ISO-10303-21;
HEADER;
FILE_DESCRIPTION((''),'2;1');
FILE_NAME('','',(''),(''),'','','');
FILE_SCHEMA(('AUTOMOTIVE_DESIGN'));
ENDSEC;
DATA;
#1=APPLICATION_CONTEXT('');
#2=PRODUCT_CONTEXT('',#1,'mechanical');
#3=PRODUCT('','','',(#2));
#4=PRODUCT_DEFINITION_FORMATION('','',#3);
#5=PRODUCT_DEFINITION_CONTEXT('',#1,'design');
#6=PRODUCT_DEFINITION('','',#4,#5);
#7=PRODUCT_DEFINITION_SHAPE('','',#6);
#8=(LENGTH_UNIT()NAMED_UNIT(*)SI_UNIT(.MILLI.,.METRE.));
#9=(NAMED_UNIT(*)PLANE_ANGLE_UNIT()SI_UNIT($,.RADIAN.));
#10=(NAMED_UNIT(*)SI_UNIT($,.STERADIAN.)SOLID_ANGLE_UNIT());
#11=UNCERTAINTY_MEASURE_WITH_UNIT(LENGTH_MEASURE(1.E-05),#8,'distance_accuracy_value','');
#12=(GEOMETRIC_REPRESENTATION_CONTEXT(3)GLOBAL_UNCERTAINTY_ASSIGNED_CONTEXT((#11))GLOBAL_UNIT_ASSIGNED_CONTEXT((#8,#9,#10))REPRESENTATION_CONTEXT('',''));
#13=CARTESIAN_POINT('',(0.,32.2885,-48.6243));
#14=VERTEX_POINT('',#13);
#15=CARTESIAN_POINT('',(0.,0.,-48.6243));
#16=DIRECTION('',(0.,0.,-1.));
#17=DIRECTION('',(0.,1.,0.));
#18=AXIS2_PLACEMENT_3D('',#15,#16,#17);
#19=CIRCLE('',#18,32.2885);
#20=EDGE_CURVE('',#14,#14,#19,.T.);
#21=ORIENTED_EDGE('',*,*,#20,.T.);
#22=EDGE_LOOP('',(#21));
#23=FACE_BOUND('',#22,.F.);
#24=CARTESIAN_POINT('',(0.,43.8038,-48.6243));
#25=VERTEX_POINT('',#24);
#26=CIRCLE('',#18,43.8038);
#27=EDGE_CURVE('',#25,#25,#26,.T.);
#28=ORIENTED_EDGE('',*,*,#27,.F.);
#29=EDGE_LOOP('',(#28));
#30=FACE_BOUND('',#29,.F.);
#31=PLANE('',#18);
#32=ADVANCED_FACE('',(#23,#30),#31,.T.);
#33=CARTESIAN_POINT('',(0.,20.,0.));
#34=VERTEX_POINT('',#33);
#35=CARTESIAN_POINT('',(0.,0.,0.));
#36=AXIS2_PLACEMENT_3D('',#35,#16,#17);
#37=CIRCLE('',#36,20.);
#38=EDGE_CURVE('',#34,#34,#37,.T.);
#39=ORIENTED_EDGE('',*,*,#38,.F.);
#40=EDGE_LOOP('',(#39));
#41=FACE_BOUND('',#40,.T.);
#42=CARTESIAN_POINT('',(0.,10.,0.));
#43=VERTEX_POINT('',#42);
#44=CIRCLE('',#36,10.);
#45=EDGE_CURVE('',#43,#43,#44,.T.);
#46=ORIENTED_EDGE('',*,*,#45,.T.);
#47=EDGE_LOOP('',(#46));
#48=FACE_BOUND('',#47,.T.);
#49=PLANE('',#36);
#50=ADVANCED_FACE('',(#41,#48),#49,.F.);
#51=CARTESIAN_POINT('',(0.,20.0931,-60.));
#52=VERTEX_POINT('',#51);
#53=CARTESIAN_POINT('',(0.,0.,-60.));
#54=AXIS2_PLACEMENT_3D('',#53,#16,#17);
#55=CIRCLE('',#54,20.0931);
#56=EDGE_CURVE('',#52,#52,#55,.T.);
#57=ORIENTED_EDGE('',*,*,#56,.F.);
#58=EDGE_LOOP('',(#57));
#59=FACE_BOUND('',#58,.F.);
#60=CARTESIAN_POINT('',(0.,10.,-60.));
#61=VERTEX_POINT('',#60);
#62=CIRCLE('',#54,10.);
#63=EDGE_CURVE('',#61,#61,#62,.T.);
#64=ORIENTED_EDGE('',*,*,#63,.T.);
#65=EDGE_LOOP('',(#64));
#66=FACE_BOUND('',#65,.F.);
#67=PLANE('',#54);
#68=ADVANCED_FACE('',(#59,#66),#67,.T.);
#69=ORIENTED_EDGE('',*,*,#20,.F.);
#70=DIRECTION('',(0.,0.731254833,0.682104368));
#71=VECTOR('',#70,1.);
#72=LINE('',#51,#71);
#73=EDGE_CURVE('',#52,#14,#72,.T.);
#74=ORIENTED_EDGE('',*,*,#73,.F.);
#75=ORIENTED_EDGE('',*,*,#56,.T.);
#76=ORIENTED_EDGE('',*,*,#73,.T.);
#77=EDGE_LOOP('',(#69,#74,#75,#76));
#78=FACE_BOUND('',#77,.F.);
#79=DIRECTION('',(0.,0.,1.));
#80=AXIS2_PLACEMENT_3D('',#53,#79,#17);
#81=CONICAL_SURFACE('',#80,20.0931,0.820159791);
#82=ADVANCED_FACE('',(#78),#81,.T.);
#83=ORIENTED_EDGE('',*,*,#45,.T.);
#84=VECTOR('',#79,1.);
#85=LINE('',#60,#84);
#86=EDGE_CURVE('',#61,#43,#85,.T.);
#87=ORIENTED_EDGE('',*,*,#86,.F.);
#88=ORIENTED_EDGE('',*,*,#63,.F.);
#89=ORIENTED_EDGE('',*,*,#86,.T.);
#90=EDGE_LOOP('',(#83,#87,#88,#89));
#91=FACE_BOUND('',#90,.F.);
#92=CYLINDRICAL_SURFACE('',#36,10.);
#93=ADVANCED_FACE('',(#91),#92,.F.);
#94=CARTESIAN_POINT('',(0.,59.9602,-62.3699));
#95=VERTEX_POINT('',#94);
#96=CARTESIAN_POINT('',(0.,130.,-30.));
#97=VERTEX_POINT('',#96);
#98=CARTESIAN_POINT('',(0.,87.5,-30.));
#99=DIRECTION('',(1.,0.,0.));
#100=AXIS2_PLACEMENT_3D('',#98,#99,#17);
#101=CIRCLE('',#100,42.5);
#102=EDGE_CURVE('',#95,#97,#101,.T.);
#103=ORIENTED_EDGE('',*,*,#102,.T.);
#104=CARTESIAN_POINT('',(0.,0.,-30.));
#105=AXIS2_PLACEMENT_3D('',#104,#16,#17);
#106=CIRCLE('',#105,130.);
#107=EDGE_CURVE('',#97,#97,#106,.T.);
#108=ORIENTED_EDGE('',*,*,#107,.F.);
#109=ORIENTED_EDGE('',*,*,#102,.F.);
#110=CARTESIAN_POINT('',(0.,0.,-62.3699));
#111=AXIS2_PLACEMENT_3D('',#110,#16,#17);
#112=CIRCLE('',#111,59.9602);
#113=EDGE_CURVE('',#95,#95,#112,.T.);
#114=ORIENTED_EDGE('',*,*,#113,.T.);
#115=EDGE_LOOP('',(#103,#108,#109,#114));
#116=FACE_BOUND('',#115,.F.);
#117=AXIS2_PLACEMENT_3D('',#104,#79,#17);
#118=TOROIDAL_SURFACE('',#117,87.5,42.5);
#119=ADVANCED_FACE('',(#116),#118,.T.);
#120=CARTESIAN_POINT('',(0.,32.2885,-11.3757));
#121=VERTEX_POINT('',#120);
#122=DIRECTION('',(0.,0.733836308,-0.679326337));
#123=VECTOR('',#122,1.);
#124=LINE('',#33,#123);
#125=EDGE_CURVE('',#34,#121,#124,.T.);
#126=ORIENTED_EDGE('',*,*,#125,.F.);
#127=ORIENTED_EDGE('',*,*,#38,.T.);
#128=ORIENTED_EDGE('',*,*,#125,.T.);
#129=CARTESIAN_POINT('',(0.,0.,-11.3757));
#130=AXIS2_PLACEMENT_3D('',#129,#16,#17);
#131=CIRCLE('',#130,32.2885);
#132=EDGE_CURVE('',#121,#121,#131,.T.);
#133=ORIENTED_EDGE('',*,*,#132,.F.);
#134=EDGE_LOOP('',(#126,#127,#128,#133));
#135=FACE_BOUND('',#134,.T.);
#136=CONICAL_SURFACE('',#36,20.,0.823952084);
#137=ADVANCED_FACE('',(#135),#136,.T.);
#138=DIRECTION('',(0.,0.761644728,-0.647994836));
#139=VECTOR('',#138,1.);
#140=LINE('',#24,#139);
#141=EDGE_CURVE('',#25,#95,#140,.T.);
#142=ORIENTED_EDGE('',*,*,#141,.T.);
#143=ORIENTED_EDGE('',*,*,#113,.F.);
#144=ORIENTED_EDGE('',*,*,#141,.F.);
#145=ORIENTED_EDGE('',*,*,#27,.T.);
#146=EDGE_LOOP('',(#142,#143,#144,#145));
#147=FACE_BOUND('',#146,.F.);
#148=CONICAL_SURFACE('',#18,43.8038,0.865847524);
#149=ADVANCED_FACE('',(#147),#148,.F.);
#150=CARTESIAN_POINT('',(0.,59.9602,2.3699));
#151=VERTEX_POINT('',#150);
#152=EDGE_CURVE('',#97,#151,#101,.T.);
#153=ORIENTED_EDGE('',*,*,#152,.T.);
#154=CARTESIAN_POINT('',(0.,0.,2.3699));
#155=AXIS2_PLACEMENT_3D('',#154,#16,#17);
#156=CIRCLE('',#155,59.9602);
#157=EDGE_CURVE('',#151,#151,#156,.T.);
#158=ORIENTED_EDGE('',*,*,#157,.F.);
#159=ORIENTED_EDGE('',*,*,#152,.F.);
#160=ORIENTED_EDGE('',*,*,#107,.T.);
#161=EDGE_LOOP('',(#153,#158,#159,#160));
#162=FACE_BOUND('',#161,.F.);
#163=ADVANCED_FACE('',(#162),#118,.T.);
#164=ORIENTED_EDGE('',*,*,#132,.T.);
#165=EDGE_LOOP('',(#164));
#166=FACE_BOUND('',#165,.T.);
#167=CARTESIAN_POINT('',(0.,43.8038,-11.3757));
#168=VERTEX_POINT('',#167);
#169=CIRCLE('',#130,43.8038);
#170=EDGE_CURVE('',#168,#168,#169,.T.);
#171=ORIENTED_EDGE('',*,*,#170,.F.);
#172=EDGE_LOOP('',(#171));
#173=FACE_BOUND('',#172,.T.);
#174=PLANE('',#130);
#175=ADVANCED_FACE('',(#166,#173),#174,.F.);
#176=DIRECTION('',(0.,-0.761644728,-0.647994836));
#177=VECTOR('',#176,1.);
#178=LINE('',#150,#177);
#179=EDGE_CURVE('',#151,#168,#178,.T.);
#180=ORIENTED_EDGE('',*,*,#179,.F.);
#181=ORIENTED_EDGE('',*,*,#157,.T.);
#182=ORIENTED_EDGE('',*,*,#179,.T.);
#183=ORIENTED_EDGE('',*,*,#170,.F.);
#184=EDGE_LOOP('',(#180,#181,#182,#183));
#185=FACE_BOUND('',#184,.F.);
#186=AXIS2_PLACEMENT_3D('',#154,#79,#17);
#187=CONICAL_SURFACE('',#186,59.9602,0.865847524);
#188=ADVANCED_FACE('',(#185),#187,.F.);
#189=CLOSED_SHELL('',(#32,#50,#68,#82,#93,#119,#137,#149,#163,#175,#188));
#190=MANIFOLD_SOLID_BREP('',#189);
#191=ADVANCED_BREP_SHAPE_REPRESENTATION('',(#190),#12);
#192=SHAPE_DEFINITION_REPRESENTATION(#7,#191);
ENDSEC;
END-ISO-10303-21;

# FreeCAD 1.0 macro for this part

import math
import FreeCAD as App
import Part
import Sketcher
from FreeCAD import Vector
Q = App.Units.Quantity

doc = App.newDocument("Part")
body = doc.addObject("PartDesign::Body", "Body")

# Sketch on YZ plane
sketch1 = body.newObject("Sketcher::SketchObject", "Sketch")
sketch1.AttachmentSupport = (doc.getObject("YZ_Plane"), [""])
sketch1.MapMode = "FlatFace"
sketch1.addGeometry(Part.LineSegment(Vector(20, 0, 0), Vector(10, 0, 0)), False)
sketch1.addGeometry(Part.LineSegment(Vector(10, 0, 0), Vector(10, -60, 0)), False)
sketch1.addGeometry(Part.LineSegment(Vector(10, -60, 0), Vector(20, -60, 0)), False)
sketch1.addGeometry(Part.LineSegment(Vector(20, -60, 0), Vector(32, -49, 0)), False)
sketch1.addGeometry(Part.LineSegment(Vector(32, -49, 0), Vector(44, -49, 0)), False)
sketch1.addGeometry(Part.LineSegment(Vector(44, -49, 0), Vector(60, -62, 0)), False)
sketch1.addGeometry(Part.ArcOfCircle(Part.Circle(Vector(88, -30, 0), Vector(0, 0, 1), 42), math.radians(-130), math.radians(130)), False)
sketch1.addGeometry(Part.LineSegment(Vector(60, 2, 0), Vector(44, -11, 0)), False)
sketch1.addGeometry(Part.LineSegment(Vector(44, -11, 0), Vector(32, -11, 0)), False)
sketch1.addGeometry(Part.LineSegment(Vector(32, -11, 0), Vector(20, 0, 0)), False)
sketch1.addConstraint(Sketcher.Constraint("Coincident", 0, 2, 1, 1))
sketch1.addConstraint(Sketcher.Constraint("Coincident", 1, 2, 2, 1))
sketch1.addConstraint(Sketcher.Constraint("Coincident", 2, 2, 3, 1))
sketch1.addConstraint(Sketcher.Constraint("Coincident", 3, 2, 4, 1))
sketch1.addConstraint(Sketcher.Constraint("Coincident", 4, 2, 5, 1))
sketch1.addConstraint(Sketcher.Constraint("Tangent", 5, 2, 6, 1))
sketch1.addConstraint(Sketcher.Constraint("Tangent", 6, 2, 7, 1))
sketch1.addConstraint(Sketcher.Constraint("Coincident", 7, 2, 8, 1))
sketch1.addConstraint(Sketcher.Constraint("Coincident", 8, 2, 9, 1))
sketch1.addConstraint(Sketcher.Constraint("Coincident", 9, 2, 0, 1))
sketch1.addConstraint(Sketcher.Constraint("Horizontal", 0))
sketch1.addConstraint(Sketcher.Constraint("Vertical", 1))
sketch1.addConstraint(Sketcher.Constraint("Horizontal", 2))
sketch1.addConstraint(Sketcher.Constraint("Horizontal", 4))
sketch1.addConstraint(Sketcher.Constraint("Horizontal", 8))
sketch1.addConstraint(Sketcher.Constraint("PointOnObject", 0, 2, -1))
sketch1.addConstraint(Sketcher.Constraint("Vertical", 5, 2, 6, 2))
sketch1.addConstraint(Sketcher.Constraint("Vertical", 4, 2, 7, 2))
sketch1.addConstraint(Sketcher.Constraint("Vertical", 3, 2, 8, 2))
sketch1.addConstraint(Sketcher.Constraint("Radius", 6, Q("42.5 mm")))
sketch1.addConstraint(Sketcher.Constraint("DistanceY", 1, 2, 1, 1, Q("60 mm")))
sketch1.addConstraint(Sketcher.Constraint("DistanceX", -1, 1, 9, 2, Q("20 mm")))
sketch1.addConstraint(Sketcher.Constraint("DistanceX", 0, 2, 0, 1, Q("10 mm")))
sketch1.addConstraint(Sketcher.Constraint("DistanceY", 6, 3, -1, 1, Q("30 mm")))
sketch1.addConstraint(Sketcher.Constraint("DistanceX", -1, 1, 6, 3, Q("87.5 mm")))
sketch1.addConstraint(Sketcher.Constraint("Angle", 5, Q("-40.3906 deg")))
sketch1.addConstraint(Sketcher.Constraint("Angle", 9, Q("137.209 deg")))
sketch1.addConstraint(Sketcher.Constraint("DistanceX", 2, 1, 2, 2, Q("10.093 mm")))
sketch1.addConstraint(Sketcher.Constraint("DistanceX", 4, 1, 4, 2, Q("11.5153 mm")))
revolution = body.newObject("PartDesign::Revolution", "Revolution")
revolution.Profile = sketch1
revolution.ReferenceAxis = (sketch1, ["V_Axis"])
revolution.Angle = 360

doc.recompute()
